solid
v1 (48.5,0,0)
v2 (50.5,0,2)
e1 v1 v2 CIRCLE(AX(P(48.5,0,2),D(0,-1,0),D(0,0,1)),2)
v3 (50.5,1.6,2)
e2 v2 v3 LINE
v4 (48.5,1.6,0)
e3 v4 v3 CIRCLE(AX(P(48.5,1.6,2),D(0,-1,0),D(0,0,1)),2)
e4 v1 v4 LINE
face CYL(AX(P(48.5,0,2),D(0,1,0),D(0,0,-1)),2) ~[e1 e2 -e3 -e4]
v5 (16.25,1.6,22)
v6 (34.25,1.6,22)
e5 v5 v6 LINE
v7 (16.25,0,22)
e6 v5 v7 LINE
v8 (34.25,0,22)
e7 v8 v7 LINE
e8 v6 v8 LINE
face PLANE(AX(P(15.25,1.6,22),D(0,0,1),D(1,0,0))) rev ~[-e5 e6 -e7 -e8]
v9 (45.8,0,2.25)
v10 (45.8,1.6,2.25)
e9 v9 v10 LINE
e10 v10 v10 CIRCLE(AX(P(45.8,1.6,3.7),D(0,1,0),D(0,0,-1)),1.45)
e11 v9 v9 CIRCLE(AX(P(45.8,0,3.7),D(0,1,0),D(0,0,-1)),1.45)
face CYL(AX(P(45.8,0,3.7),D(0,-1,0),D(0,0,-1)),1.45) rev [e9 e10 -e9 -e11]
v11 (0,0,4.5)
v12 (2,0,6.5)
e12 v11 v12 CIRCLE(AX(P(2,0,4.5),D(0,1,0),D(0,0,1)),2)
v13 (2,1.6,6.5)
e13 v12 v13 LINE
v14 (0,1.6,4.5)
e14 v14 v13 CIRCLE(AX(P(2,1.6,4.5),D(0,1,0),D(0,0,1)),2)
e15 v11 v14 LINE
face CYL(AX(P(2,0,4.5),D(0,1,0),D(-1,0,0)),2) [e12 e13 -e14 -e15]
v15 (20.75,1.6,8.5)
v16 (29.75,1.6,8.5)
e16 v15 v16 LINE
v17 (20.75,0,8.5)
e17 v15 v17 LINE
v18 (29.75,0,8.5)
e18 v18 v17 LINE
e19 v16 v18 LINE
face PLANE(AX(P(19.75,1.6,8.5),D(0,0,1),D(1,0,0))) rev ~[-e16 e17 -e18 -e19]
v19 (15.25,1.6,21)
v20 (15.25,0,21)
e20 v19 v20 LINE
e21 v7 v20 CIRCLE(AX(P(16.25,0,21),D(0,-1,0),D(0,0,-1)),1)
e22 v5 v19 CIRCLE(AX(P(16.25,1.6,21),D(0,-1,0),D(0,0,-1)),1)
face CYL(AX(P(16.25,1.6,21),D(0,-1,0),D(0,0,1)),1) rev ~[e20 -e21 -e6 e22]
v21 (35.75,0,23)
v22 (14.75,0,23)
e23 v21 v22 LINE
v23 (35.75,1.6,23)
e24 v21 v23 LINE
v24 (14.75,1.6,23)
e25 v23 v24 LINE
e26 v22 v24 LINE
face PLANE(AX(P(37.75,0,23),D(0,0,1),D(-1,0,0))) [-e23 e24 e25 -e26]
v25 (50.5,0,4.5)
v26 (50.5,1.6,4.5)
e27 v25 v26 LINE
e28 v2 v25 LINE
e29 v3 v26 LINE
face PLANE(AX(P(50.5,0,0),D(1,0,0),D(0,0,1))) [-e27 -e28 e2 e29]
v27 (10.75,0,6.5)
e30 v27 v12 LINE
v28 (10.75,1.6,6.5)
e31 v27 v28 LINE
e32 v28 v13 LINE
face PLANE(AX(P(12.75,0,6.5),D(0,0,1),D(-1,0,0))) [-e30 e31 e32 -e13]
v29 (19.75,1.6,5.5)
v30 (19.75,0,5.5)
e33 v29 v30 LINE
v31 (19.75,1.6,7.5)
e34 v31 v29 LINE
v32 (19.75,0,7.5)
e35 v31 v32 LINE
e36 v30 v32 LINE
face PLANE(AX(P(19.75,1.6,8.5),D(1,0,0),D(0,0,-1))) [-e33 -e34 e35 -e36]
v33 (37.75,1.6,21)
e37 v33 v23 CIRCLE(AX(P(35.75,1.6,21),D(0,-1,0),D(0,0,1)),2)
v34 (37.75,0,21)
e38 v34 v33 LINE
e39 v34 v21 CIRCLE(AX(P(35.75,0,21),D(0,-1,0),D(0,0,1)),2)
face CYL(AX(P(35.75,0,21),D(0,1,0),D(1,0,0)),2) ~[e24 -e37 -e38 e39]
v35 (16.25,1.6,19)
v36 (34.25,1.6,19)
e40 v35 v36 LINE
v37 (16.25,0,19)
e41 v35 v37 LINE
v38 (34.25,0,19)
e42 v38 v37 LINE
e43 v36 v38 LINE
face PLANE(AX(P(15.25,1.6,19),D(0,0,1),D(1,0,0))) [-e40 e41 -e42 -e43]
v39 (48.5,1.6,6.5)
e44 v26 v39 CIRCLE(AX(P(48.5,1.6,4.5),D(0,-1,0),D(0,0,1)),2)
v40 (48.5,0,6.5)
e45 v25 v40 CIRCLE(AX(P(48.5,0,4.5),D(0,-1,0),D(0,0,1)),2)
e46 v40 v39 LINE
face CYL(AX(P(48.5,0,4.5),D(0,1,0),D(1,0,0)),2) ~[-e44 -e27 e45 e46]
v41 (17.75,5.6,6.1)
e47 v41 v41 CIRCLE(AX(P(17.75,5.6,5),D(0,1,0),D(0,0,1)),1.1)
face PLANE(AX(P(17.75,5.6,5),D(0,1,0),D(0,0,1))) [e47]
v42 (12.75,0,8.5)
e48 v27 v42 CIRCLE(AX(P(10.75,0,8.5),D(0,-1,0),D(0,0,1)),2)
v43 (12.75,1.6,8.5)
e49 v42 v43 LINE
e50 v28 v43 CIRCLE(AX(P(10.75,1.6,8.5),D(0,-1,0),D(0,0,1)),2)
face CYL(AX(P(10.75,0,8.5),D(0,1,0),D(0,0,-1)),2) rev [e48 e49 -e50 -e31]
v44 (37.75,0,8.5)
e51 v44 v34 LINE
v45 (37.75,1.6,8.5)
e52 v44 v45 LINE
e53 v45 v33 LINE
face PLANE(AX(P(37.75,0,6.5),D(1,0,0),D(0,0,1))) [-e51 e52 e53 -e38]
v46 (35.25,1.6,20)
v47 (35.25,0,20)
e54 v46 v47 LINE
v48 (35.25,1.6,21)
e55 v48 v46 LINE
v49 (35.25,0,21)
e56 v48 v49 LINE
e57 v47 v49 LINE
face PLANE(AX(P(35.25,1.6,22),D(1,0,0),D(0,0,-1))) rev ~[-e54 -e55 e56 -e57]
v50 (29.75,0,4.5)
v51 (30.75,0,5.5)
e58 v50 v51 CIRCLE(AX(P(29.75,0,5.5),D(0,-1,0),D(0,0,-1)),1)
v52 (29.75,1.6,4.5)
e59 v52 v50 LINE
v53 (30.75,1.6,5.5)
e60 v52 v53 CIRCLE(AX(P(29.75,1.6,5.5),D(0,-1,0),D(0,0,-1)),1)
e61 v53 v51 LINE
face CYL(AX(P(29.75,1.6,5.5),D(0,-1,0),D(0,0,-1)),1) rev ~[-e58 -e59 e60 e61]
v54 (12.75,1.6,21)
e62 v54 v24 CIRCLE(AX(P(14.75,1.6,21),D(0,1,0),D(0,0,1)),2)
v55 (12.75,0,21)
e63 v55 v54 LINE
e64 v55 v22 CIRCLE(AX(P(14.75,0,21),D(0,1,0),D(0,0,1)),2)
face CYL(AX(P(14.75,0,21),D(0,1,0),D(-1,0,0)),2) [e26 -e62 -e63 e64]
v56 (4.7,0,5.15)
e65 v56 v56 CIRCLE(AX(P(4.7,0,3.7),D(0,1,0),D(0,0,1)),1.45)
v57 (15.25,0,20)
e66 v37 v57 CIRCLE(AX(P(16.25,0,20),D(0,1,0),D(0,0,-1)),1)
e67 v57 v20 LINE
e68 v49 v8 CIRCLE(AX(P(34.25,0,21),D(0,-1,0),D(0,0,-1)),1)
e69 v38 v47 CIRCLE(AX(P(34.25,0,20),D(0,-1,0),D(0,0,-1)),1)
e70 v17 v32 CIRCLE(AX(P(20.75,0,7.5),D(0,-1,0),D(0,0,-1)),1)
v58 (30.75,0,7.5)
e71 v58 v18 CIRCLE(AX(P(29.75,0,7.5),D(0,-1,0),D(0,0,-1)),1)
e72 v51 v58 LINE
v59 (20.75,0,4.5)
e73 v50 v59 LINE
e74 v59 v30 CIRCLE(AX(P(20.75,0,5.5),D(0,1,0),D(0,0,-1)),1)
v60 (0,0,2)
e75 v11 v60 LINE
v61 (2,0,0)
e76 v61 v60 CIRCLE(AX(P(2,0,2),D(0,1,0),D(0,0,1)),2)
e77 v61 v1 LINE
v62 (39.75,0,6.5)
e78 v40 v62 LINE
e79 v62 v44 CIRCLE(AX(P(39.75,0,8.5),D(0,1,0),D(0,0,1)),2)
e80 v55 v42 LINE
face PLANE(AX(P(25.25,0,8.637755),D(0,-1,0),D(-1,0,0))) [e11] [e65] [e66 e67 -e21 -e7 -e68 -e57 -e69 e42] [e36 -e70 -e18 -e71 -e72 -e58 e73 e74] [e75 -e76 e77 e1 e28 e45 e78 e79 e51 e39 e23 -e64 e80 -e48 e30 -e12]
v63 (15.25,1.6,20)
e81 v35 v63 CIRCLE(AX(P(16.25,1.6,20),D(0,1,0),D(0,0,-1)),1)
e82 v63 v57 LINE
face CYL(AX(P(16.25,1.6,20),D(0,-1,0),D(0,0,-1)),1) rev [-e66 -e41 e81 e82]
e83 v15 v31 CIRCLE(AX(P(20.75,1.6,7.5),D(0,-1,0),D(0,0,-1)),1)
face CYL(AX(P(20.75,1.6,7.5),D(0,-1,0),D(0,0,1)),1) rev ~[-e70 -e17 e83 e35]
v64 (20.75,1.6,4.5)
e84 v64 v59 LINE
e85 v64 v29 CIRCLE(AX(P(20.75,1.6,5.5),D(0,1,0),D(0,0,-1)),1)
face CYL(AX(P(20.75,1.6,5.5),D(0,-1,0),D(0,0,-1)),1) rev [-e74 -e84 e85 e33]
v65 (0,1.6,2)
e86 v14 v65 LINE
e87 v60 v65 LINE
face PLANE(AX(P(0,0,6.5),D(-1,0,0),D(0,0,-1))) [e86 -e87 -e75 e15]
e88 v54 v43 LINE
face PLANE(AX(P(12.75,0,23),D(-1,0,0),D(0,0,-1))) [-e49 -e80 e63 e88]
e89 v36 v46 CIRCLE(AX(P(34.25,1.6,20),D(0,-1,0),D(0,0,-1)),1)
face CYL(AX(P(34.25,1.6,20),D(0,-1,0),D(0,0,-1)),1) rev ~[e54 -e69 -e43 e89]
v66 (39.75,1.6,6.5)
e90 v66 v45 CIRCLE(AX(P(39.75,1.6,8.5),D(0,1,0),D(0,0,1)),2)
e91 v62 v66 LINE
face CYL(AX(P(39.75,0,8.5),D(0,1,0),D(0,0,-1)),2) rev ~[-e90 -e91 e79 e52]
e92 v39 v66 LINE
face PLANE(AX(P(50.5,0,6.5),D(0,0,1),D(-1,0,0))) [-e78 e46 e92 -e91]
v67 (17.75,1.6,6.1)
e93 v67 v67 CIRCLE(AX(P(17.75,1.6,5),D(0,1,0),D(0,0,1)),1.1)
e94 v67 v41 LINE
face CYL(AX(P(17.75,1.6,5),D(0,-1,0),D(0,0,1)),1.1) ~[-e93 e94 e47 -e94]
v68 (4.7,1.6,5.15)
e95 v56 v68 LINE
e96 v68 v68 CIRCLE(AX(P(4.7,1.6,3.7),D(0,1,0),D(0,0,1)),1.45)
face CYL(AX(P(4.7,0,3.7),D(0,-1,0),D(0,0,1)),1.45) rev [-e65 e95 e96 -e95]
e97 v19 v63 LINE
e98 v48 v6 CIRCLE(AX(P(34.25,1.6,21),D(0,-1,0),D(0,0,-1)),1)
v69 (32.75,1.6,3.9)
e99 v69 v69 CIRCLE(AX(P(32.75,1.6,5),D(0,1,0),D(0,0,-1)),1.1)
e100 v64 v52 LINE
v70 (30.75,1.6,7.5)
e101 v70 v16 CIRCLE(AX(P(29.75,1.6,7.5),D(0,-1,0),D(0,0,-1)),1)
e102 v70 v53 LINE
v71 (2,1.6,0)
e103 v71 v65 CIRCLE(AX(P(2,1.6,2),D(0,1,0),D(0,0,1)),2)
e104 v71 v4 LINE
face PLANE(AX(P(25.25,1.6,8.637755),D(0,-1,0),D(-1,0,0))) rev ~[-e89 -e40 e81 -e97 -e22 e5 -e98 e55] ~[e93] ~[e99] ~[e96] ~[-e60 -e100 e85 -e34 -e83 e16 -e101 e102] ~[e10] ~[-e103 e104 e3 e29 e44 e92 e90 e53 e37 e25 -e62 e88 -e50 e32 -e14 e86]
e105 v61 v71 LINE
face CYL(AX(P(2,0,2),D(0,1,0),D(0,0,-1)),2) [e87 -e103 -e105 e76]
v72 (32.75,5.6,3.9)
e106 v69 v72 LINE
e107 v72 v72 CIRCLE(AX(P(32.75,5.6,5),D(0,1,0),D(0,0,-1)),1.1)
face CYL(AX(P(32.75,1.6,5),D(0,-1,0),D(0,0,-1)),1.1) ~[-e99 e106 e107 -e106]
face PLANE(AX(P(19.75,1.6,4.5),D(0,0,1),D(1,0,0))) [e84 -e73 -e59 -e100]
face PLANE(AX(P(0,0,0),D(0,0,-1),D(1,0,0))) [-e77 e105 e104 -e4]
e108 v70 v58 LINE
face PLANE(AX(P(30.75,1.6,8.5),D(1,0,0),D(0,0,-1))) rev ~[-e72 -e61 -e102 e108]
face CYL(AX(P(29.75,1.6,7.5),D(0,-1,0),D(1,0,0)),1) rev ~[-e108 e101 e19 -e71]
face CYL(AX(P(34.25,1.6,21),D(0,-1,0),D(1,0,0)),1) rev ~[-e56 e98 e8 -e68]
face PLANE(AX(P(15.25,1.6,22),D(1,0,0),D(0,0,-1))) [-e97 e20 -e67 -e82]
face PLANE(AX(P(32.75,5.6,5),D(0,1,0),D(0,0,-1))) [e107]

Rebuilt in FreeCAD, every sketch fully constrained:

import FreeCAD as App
import Part
import Sketcher

V = App.Vector
Q = App.Units.Quantity


def edges_at(feature, points):
    """Names of the edges that pass closest to the given points."""
    edges = feature.Shape.Edges
    near = lambda p: min(range(len(edges)), key=lambda i: edges[i].distToShape(Part.Vertex(*p))[0])
    return sorted({f"Edge{near(p) + 1}" for p in points})


def add_polygon(sketch, points):
    """Adds a closed chain of lines whose ends are joined by coincident constraints."""
    first, n = sketch.GeometryCount, len(points)
    for a, b in zip(points, points[1:] + points[:1]):
        sketch.addGeometry(Part.LineSegment(App.Vector(*a, 0), App.Vector(*b, 0)), False)
    for i in range(n):
        sketch.addConstraint(Sketcher.Constraint("Coincident", first + i, 2, first + (i + 1) % n, 1))

doc = App.newDocument("Part")
body = doc.addObject("PartDesign::Body", "Body")

# Sketch on XZ plane
sketch1 = doc.addObject("Sketcher::SketchObject", "Sketch")
body.addObject(sketch1)
sketch1.AttachmentSupport = (doc.XZ_Plane, [""])
sketch1.MapMode = "FlatFace"
add_polygon(sketch1, [(50.5, 0), (0, 0), (0, 6.5), (12.75, 6.5), (12.75, 23), (37.75, 23), (37.75, 6.5), (50.5, 6.5)])  # lines 0-7
sketch1.addGeometry(Part.Circle(V(45.8, 3.7, 0), V(0, 0, 1), 1.45), False)  # 8
sketch1.addGeometry(Part.Circle(V(4.7, 3.7, 0), V(0, 0, 1), 1.45), False)  # 9
sketch1.addConstraint([
    Sketcher.Constraint("Horizontal", 0),
    Sketcher.Constraint("Vertical", 1),
    Sketcher.Constraint("Horizontal", 2),
    Sketcher.Constraint("Vertical", 3),
    Sketcher.Constraint("Horizontal", 4),
    Sketcher.Constraint("Vertical", 5),
    Sketcher.Constraint("Horizontal", 6),
    Sketcher.Constraint("Vertical", 7),
    Sketcher.Constraint("Coincident", 0, 2, -1, 1),
    Sketcher.Constraint("Equal", 8, 9),
    Sketcher.Constraint("Horizontal", 8, 3, 9, 3),
    Sketcher.Constraint("Horizontal", 2, 2, 5, 2),
    Sketcher.Constraint("Equal", 2, 6),
    Sketcher.Constraint("Diameter", 8, Q("2.9 mm")),
    Sketcher.Constraint("DistanceX", 4, 1, 4, 2, Q("25 mm")),
    Sketcher.Constraint("DistanceX", 0, 2, 0, 1, Q("50.5 mm")),
    Sketcher.Constraint("DistanceY", 1, 1, 1, 2, Q("6.5 mm")),
    Sketcher.Constraint("DistanceY", 3, 1, 3, 2, Q("16.5 mm")),
    Sketcher.Constraint("DistanceX", -1, 1, 8, 3, Q("45.8 mm")),
    Sketcher.Constraint("DistanceY", -1, 1, 8, 3, Q("3.7 mm")),
    Sketcher.Constraint("DistanceX", -1, 1, 9, 3, Q("4.7 mm")),
])
pad1 = doc.addObject("PartDesign::Pad", "Pad")
body.addObject(pad1)
pad1.Profile = sketch1
pad1.Length = 1.6
pad1.Reversed = True
doc.recompute()

fillet = doc.addObject("PartDesign::Fillet", "Fillet")
body.addObject(fillet)
fillet.Base = (pad1, edges_at(pad1, [
    (0, 0.8, 0),
    (50.5, 0.8, 0),
    (50.5, 0.8, 6.5),
    (37.75, 0.8, 6.5),
    (37.75, 0.8, 23),
    (12.75, 0.8, 23),
    (12.75, 0.8, 6.5),
    (0, 0.8, 6.5),
]))
fillet.Radius = 2

# Sketch on XZ plane
sketch2 = doc.addObject("Sketcher::SketchObject", "Sketch001")
body.addObject(sketch2)
sketch2.AttachmentSupport = (doc.XZ_Plane, [""])
sketch2.MapMode = "FlatFace"
sketch2.AttachmentOffset = App.Placement(V(0, 0, -1.6), App.Rotation())
sketch2.addGeometry([
    Part.Circle(V(17.75, 5, 0), V(0, 0, 1), 1.1),
    Part.Circle(V(32.75, 5, 0), V(0, 0, 1), 1.1),
], False)
sketch2.addConstraint([
    Sketcher.Constraint("Equal", 0, 1),
    Sketcher.Constraint("Horizontal", 0, 3, 1, 3),
    Sketcher.Constraint("Diameter", 0, Q("2.2 mm")),
    Sketcher.Constraint("DistanceY", -1, 1, 0, 3, Q("5 mm")),
    Sketcher.Constraint("DistanceX", 0, 3, 1, 3, Q("15 mm")),
    Sketcher.Constraint("DistanceX", -1, 1, 0, 3, Q("17.75 mm")),
])
pad2 = doc.addObject("PartDesign::Pad", "Pad001")
body.addObject(pad2)
pad2.Profile = sketch2
pad2.Length = 4
pad2.Reversed = True

# Sketch on XZ plane
sketch3 = doc.addObject("Sketcher::SketchObject", "Sketch002")
body.addObject(sketch3)
sketch3.AttachmentSupport = (doc.XZ_Plane, [""])
sketch3.MapMode = "FlatFace"
sketch3.AttachmentOffset = App.Placement(V(0, 0, -1.6), App.Rotation())
add_polygon(sketch3, [(19.75, 4.5), (19.75, 8.5), (30.75, 8.5), (30.75, 4.5)])  # lines 0-3
sketch3.addConstraint([
    Sketcher.Constraint("Vertical", 0),
    Sketcher.Constraint("Horizontal", 1),
    Sketcher.Constraint("Vertical", 2),
    Sketcher.Constraint("Horizontal", 3),
    Sketcher.Constraint("DistanceX", 1, 1, 1, 2, Q("11 mm")),
    Sketcher.Constraint("DistanceY", 0, 1, 0, 2, Q("4 mm")),
    Sketcher.Constraint("DistanceY", -1, 1, 0, 2, Q("8.5 mm")),
    Sketcher.Constraint("DistanceX", -1, 1, 0, 2, Q("19.75 mm")),
])
pocket1 = doc.addObject("PartDesign::Pocket", "Pocket")
body.addObject(pocket1)
pocket1.Profile = sketch3
pocket1.Length = 3
pocket1.Reversed = True
doc.recompute()

fillet2 = doc.addObject("PartDesign::Fillet", "Fillet001")
body.addObject(fillet2)
fillet2.Base = (pocket1, edges_at(pocket1, [
    (19.75, 0.8, 8.5),
    (19.75, 0.8, 4.5),
    (30.75, 0.8, 4.5),
    (30.75, 0.8, 8.5),
]))
fillet2.Radius = 1

# Sketch on XZ plane
sketch4 = doc.addObject("Sketcher::SketchObject", "Sketch003")
body.addObject(sketch4)
sketch4.AttachmentSupport = (doc.XZ_Plane, [""])
sketch4.MapMode = "FlatFace"
sketch4.AttachmentOffset = App.Placement(V(0, 0, -1.6), App.Rotation())
add_polygon(sketch4, [(15.25, 19), (15.25, 22), (35.25, 22), (35.25, 19)])  # lines 0-3
sketch4.addConstraint([
    Sketcher.Constraint("Vertical", 0),
    Sketcher.Constraint("Horizontal", 1),
    Sketcher.Constraint("Vertical", 2),
    Sketcher.Constraint("Horizontal", 3),
    Sketcher.Constraint("DistanceX", 1, 1, 1, 2, Q("20 mm")),
    Sketcher.Constraint("DistanceY", 0, 1, 0, 2, Q("3 mm")),
    Sketcher.Constraint("DistanceY", -1, 1, 0, 2, Q("22 mm")),
    Sketcher.Constraint("DistanceX", -1, 1, 0, 2, Q("15.25 mm")),
])
pocket2 = doc.addObject("PartDesign::Pocket", "Pocket001")
body.addObject(pocket2)
pocket2.Profile = sketch4
pocket2.Length = 3
pocket2.Reversed = True
doc.recompute()

fillet3 = doc.addObject("PartDesign::Fillet", "Fillet002")
body.addObject(fillet3)
fillet3.Base = (pocket2, edges_at(pocket2, [
    (15.25, 0.8, 22),
    (15.25, 0.8, 19),
    (35.25, 0.8, 19),
    (35.25, 0.8, 22),
]))
fillet3.Radius = 1

doc.recompute()
